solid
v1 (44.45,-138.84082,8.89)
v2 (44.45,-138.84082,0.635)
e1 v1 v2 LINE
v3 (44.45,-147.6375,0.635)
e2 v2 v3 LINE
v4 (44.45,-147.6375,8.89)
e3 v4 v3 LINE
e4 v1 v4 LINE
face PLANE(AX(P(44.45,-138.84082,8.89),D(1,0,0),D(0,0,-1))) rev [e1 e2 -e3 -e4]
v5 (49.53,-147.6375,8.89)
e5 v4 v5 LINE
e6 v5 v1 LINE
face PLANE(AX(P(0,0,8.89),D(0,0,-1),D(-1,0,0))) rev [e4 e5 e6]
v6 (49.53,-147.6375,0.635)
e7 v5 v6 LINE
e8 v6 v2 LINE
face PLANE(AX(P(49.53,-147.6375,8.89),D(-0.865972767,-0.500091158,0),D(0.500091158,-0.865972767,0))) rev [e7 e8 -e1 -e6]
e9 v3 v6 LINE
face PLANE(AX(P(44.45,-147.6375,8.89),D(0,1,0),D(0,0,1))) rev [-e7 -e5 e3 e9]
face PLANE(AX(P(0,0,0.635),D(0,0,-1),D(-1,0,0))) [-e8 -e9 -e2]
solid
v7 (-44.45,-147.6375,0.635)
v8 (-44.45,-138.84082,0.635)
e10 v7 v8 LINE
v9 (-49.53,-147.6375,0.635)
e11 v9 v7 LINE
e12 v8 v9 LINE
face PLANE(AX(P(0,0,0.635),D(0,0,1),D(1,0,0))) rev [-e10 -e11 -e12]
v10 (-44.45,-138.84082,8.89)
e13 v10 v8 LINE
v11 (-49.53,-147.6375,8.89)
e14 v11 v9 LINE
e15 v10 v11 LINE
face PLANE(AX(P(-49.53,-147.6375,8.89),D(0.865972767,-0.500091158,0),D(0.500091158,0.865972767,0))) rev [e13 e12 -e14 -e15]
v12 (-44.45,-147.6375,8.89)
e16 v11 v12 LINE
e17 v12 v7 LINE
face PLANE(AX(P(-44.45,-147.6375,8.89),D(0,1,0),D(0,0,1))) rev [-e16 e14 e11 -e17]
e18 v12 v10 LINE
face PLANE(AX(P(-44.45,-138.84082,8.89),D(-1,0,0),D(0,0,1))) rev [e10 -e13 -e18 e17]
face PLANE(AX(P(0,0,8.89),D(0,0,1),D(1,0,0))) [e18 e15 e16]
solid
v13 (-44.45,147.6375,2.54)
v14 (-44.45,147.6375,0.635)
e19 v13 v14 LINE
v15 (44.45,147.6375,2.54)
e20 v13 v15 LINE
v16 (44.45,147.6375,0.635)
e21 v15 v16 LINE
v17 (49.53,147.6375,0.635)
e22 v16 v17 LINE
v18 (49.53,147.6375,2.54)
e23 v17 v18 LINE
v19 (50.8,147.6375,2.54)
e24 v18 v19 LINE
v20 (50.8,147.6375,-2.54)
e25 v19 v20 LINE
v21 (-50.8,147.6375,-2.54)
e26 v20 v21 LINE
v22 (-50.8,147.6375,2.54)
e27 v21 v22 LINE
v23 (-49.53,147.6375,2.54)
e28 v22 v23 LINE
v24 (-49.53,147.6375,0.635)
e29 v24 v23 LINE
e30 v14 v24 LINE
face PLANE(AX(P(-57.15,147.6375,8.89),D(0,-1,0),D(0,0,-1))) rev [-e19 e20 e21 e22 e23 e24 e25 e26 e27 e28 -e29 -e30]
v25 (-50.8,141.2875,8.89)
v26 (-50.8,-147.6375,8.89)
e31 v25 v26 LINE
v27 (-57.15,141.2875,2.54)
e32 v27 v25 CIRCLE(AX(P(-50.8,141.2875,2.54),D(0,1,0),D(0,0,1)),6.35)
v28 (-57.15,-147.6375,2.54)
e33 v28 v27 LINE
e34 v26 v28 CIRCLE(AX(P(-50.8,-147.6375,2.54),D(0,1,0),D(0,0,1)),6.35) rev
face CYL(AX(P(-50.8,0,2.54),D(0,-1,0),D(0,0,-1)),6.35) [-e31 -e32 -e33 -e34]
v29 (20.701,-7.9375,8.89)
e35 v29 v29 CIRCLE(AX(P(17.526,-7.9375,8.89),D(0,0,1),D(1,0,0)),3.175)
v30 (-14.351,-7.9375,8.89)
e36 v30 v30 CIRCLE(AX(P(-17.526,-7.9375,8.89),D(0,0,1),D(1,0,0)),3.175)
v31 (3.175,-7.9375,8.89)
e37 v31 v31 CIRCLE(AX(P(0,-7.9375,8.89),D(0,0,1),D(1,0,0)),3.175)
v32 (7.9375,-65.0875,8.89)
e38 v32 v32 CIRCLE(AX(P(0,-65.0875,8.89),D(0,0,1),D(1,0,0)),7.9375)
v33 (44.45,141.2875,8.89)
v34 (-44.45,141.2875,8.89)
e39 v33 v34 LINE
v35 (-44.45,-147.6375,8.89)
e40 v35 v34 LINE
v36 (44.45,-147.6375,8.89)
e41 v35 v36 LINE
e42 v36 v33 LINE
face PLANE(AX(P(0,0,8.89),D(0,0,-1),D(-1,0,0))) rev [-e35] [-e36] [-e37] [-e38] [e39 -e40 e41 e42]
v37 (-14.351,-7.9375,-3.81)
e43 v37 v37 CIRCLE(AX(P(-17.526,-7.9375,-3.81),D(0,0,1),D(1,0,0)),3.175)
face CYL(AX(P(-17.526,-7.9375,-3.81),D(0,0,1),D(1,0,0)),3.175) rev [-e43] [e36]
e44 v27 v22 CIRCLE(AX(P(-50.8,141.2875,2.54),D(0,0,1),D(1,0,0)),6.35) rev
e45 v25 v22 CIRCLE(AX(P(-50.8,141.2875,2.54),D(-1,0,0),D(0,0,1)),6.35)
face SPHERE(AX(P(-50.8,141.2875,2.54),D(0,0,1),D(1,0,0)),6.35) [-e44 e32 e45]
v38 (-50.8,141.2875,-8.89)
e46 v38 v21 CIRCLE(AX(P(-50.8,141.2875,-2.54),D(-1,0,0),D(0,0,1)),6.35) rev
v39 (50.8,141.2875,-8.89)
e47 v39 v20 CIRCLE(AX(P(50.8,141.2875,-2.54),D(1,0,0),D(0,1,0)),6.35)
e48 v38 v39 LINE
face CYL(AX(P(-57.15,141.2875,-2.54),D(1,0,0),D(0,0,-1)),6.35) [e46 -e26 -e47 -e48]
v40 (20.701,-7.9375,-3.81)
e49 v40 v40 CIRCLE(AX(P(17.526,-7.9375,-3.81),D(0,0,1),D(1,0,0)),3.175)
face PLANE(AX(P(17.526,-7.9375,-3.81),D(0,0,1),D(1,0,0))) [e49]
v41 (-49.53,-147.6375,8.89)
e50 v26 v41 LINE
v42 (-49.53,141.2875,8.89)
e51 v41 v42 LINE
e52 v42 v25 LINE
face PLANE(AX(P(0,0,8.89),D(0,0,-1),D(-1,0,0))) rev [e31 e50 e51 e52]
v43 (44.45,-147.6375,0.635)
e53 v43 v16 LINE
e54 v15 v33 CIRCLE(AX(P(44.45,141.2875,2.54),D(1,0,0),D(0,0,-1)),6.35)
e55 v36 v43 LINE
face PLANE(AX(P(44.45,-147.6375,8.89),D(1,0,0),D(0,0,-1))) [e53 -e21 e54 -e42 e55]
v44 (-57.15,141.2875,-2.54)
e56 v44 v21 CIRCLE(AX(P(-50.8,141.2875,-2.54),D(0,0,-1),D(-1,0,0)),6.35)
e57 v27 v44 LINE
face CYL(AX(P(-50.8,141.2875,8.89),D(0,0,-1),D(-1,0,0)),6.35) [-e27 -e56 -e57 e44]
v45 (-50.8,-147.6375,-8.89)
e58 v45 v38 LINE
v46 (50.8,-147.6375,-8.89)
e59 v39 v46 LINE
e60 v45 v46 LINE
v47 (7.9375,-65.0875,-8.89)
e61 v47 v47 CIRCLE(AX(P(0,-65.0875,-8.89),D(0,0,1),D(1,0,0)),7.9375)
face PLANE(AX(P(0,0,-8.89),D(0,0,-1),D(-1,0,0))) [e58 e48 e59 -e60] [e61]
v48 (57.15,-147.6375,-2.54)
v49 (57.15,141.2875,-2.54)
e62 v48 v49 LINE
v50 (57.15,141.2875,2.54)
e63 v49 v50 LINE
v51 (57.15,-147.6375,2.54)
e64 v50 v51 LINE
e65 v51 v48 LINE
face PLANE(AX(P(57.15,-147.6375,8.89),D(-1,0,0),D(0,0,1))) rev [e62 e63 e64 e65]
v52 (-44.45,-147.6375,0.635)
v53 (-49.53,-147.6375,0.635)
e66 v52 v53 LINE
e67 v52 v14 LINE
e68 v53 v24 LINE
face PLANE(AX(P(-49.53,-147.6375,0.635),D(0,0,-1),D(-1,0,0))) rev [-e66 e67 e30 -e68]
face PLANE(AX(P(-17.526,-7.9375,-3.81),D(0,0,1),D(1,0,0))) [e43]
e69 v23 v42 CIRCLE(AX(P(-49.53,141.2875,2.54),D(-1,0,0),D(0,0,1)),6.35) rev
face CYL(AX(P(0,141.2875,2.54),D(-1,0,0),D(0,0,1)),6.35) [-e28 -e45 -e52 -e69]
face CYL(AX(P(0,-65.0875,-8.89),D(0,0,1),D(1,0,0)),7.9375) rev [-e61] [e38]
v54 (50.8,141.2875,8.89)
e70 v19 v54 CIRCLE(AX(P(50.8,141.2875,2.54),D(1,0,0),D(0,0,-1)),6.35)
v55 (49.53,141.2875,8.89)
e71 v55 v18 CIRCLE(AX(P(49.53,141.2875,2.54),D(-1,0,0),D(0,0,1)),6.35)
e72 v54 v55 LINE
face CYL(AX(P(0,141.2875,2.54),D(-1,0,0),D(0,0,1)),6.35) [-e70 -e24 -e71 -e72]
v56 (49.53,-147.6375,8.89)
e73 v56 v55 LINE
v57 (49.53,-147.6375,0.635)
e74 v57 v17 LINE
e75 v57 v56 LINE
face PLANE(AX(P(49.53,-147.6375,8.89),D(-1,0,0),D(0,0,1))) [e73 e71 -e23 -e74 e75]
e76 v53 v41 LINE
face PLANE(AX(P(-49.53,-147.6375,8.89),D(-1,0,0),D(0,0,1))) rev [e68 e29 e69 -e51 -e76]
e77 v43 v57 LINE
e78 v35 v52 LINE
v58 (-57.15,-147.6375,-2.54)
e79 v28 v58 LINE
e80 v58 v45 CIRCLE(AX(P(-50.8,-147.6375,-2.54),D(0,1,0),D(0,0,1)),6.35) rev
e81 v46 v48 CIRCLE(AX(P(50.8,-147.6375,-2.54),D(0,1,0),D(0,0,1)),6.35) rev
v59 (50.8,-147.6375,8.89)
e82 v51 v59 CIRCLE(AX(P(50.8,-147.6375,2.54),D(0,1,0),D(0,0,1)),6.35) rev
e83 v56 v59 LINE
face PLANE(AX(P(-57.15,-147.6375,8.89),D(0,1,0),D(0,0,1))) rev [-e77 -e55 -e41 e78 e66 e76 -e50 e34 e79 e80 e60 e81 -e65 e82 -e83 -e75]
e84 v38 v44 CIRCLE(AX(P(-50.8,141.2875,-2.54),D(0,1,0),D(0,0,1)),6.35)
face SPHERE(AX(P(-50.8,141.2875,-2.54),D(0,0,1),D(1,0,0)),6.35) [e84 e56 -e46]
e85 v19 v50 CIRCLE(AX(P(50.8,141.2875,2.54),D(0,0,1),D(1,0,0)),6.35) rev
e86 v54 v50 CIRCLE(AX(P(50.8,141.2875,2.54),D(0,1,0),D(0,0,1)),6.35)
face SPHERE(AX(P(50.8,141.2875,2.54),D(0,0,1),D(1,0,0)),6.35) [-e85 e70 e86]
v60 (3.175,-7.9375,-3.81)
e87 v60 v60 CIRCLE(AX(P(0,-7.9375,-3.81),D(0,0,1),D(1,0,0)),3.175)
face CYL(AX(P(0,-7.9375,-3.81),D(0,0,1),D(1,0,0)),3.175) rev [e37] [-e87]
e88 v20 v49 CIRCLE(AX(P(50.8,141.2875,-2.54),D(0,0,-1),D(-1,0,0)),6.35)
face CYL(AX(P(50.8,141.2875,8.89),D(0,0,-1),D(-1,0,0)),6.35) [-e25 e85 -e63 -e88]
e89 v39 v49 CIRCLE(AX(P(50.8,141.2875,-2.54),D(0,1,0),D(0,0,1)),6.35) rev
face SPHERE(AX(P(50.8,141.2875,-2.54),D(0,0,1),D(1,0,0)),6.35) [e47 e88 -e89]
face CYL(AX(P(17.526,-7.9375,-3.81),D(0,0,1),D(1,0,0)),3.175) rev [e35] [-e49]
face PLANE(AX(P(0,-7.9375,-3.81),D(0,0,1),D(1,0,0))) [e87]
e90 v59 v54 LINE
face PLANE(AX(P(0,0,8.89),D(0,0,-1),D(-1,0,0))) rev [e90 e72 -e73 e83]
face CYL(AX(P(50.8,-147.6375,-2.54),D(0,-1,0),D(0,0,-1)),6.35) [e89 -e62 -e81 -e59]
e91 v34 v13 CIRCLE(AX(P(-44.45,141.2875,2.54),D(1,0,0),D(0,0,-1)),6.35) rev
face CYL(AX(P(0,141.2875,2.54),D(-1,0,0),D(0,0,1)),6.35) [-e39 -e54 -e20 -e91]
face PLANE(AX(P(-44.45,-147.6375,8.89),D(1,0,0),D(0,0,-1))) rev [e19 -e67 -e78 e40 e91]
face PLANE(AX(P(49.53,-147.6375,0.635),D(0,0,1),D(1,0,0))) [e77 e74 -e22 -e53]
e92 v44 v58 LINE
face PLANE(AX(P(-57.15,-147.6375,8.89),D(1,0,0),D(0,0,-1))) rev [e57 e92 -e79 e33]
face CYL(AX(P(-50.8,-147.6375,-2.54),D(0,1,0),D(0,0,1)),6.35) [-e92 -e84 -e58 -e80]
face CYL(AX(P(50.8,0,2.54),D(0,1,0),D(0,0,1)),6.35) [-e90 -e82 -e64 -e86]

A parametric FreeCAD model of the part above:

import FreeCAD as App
import Part
import Sketcher
from FreeCAD import Vector
Q = App.Units.Quantity


def edges_at(feature, points):
    """Names of the edges that pass closest to the given points."""
    edges = feature.Shape.Edges
    near = lambda p: min(range(len(edges)), key=lambda i: edges[i].distToShape(Part.Vertex(*p))[0])
    return sorted({f"Edge{near(p) + 1}" for p in points})

doc = App.newDocument("Part")
body = doc.addObject("PartDesign::Body", "Body")

sketch1 = body.newObject("Sketcher::SketchObject", "Sketch")
sketch1.AttachmentSupport = (doc.getObject("XY_Plane"), [""])
sketch1.MapMode = "FlatFace"
sketch1.addGeometry(Part.LineSegment(Vector(-57.15, 147.6375, 0), Vector(-57.15, -147.6375, 0)), False)
sketch1.addGeometry(Part.LineSegment(Vector(-57.15, -147.6375, 0), Vector(57.15, -147.6375, 0)), False)
sketch1.addGeometry(Part.LineSegment(Vector(57.15, -147.6375, 0), Vector(57.15, 147.6375, 0)), False)
sketch1.addGeometry(Part.LineSegment(Vector(57.15, 147.6375, 0), Vector(-57.15, 147.6375, 0)), False)
sketch1.addConstraint(Sketcher.Constraint("Coincident", 0, 2, 1, 1))
sketch1.addConstraint(Sketcher.Constraint("Coincident", 1, 2, 2, 1))
sketch1.addConstraint(Sketcher.Constraint("Coincident", 2, 2, 3, 1))
sketch1.addConstraint(Sketcher.Constraint("Coincident", 3, 2, 0, 1))
sketch1.addConstraint(Sketcher.Constraint("Vertical", 0))
sketch1.addConstraint(Sketcher.Constraint("Horizontal", 1))
sketch1.addConstraint(Sketcher.Constraint("Vertical", 2))
sketch1.addConstraint(Sketcher.Constraint("Horizontal", 3))
sketch1.addConstraint(Sketcher.Constraint("Symmetric", 0, 2, 2, 2, -1, 1))
sketch1.addConstraint(Sketcher.Constraint("DistanceX", 1, 1, 1, 2, Q("4.5 in")))
sketch1.addConstraint(Sketcher.Constraint("DistanceY", 0, 2, 0, 1, Q("11.625 in")))
pad1 = body.newObject("PartDesign::Pad", "Pad")
pad1.Profile = sketch1
pad1.Length = Q("0.7 in")
pad1.Midplane = True

sketch2 = body.newObject("Sketcher::SketchObject", "Sketch001")
sketch2.AttachmentSupport = (doc.getObject("XY_Plane"), [""])
sketch2.MapMode = "FlatFace"
sketch2.AttachmentOffset = App.Placement(Vector(0, 0, 0.35 * 25.4), App.Rotation())
sketch2.addGeometry(Part.Circle(Vector(0, -7.9375, 0), Vector(0, 0, 1), 3.175), False)
sketch2.addGeometry(Part.Circle(Vector(-17.526, -7.9375, 0), Vector(0, 0, 1), 3.175), False)
sketch2.addGeometry(Part.Circle(Vector(17.526, -7.9375, 0), Vector(0, 0, 1), 3.175), False)
sketch2.addConstraint(Sketcher.Constraint("Equal", 0, 1))
sketch2.addConstraint(Sketcher.Constraint("Equal", 1, 2))
sketch2.addConstraint(Sketcher.Constraint("Symmetric", 1, 3, 2, 3, -2))
sketch2.addConstraint(Sketcher.Constraint("PointOnObject", 0, 3, -2))
sketch2.addConstraint(Sketcher.Constraint("Horizontal", 0, 3, 1, 3))
sketch2.addConstraint(Sketcher.Constraint("Diameter", 0, Q("0.25 in")))
sketch2.addConstraint(Sketcher.Constraint("DistanceX", 1, 3, -1, 1, Q("0.69 in")))
sketch2.addConstraint(Sketcher.Constraint("DistanceY", 0, 3, -1, 1, Q("0.3125 in")))
pocket1 = body.newObject("PartDesign::Pocket", "Pocket")
pocket1.Profile = sketch2
pocket1.Length = Q("0.5 in")

sketch3 = body.newObject("Sketcher::SketchObject", "Sketch002")
sketch3.AttachmentSupport = (doc.getObject("XZ_Plane"), [""])
sketch3.MapMode = "FlatFace"
sketch3.AttachmentOffset = App.Placement(Vector(0, 0, -5.8125 * 25.4), App.Rotation())
sketch3.addGeometry(Part.LineSegment(Vector(-49.53, 0.635, 0), Vector(-49.53, 8.89, 0)), False)
sketch3.addGeometry(Part.LineSegment(Vector(-49.53, 8.89, 0), Vector(-44.45, 8.89, 0)), False)
sketch3.addGeometry(Part.LineSegment(Vector(-44.45, 8.89, 0), Vector(-44.45, 0.635, 0)), False)
sketch3.addGeometry(Part.LineSegment(Vector(-44.45, 0.635, 0), Vector(-49.53, 0.635, 0)), False)
sketch3.addConstraint(Sketcher.Constraint("Coincident", 0, 2, 1, 1))
sketch3.addConstraint(Sketcher.Constraint("Coincident", 1, 2, 2, 1))
sketch3.addConstraint(Sketcher.Constraint("Coincident", 2, 2, 3, 1))
sketch3.addConstraint(Sketcher.Constraint("Coincident", 3, 2, 0, 1))
sketch3.addConstraint(Sketcher.Constraint("Vertical", 0))
sketch3.addConstraint(Sketcher.Constraint("Horizontal", 1))
sketch3.addConstraint(Sketcher.Constraint("Vertical", 2))
sketch3.addConstraint(Sketcher.Constraint("Horizontal", 3))
sketch3.addConstraint(Sketcher.Constraint("DistanceX", 1, 1, 1, 2, Q("0.2 in")))
sketch3.addConstraint(Sketcher.Constraint("DistanceY", 0, 1, 0, 2, Q("0.325 in")))
sketch3.addConstraint(Sketcher.Constraint("DistanceX", 0, 2, -1, 1, Q("1.95 in")))
sketch3.addConstraint(Sketcher.Constraint("DistanceY", -1, 1, 0, 2, Q("0.35 in")))
pocket2 = body.newObject("PartDesign::Pocket", "Pocket001")
pocket2.Profile = sketch3
pocket2.Type = "ThroughAll"
pocket2.Reversed = True
doc.recompute()

mirrored = body.newObject("PartDesign::Mirrored", "Mirrored")
mirrored.Originals = [pocket2]
mirrored.MirrorPlane = (doc.getObject("YZ_Plane"), [""])
body.Tip = mirrored
doc.recompute()

fillet = body.newObject("PartDesign::Fillet", "Fillet")
fillet.Base = (mirrored, edges_at(mirrored, [
    (-57.15, 0, 8.89),
    (-53.34, 147.637, 8.89),
    (57.15, 0, 8.89),
    (0, 147.637, 8.89),
    (-57.15, 0, -8.89),
    (0, 147.637, -8.89),
    (57.15, 0, -8.89),
    (53.34, 147.637, 8.89),
    (-57.15, 147.637, 0),
    (57.15, 147.637, 0),
]))
fillet.Radius = Q("0.25 in")

sketch4 = body.newObject("Sketcher::SketchObject", "Sketch003")
sketch4.AttachmentSupport = (doc.getObject("XY_Plane"), [""])
sketch4.MapMode = "FlatFace"
sketch4.AttachmentOffset = App.Placement(Vector(0, 0, 0.35 * 25.4), App.Rotation())
sketch4.addGeometry(Part.Circle(Vector(0, -65.0875, 0), Vector(0, 0, 1), 7.9375), False)
sketch4.addConstraint(Sketcher.Constraint("PointOnObject", 0, 3, -2))
sketch4.addConstraint(Sketcher.Constraint("Diameter", 0, Q("0.625 in")))
sketch4.addConstraint(Sketcher.Constraint("DistanceY", 0, 3, -1, 1, Q("2.5625 in")))
pocket3 = body.newObject("PartDesign::Pocket", "Pocket002")
pocket3.Profile = sketch4
pocket3.Type = "ThroughAll"
body2 = doc.addObject("PartDesign::Body", "Body001")

sketch5 = body2.newObject("Sketcher::SketchObject", "Sketch004")
sketch5.AttachmentSupport = (doc.getObject("XY_Plane001"), [""])
sketch5.MapMode = "FlatFace"
sketch5.AttachmentOffset = App.Placement(Vector(0, 0, 0.025 * 25.4), App.Rotation())
sketch5.addGeometry(Part.LineSegment(Vector(-44.45, -138.84082, 0), Vector(-49.53, -147.6375, 0)), False)
sketch5.addGeometry(Part.LineSegment(Vector(-49.53, -147.6375, 0), Vector(-44.45, -147.6375, 0)), False)
sketch5.addGeometry(Part.LineSegment(Vector(-44.45, -147.6375, 0), Vector(-44.45, -138.84082, 0)), False)
sketch5.addConstraint(Sketcher.Constraint("Coincident", 0, 2, 1, 1))
sketch5.addConstraint(Sketcher.Constraint("Coincident", 1, 2, 2, 1))
sketch5.addConstraint(Sketcher.Constraint("Coincident", 2, 2, 0, 1))
sketch5.addConstraint(Sketcher.Constraint("Horizontal", 1))
sketch5.addConstraint(Sketcher.Constraint("Vertical", 2))
sketch5.addConstraint(Sketcher.Constraint("DistanceX", 1, 1, 1, 2, Q("0.2 in")))
sketch5.addConstraint(Sketcher.Constraint("DistanceX", 0, 2, -1, 1, Q("1.95 in")))
sketch5.addConstraint(Sketcher.Constraint("DistanceY", 0, 2, -1, 1, Q("5.8125 in")))
sketch5.addConstraint(Sketcher.Constraint("DistanceY", 2, 1, 2, 2, Q("8.79668 mm")))
pad2 = body2.newObject("PartDesign::Pad", "Pad001")
pad2.Profile = sketch5
pad2.Length = Q("0.325 in")
body3 = doc.addObject("PartDesign::Body", "Body002")

sketch6 = body3.newObject("Sketcher::SketchObject", "Sketch005")
sketch6.AttachmentSupport = (doc.getObject("XY_Plane002"), [""])
sketch6.MapMode = "FlatFace"
sketch6.AttachmentOffset = App.Placement(Vector(0, 0, 0.025 * 25.4), App.Rotation())
sketch6.addGeometry(Part.LineSegment(Vector(49.53, -147.6375, 0), Vector(44.45, -138.84082, 0)), False)
sketch6.addGeometry(Part.LineSegment(Vector(44.45, -138.84082, 0), Vector(44.45, -147.6375, 0)), False)
sketch6.addGeometry(Part.LineSegment(Vector(44.45, -147.6375, 0), Vector(49.53, -147.6375, 0)), False)
sketch6.addConstraint(Sketcher.Constraint("Coincident", 0, 2, 1, 1))
sketch6.addConstraint(Sketcher.Constraint("Coincident", 1, 2, 2, 1))
sketch6.addConstraint(Sketcher.Constraint("Coincident", 2, 2, 0, 1))
sketch6.addConstraint(Sketcher.Constraint("Vertical", 1))
sketch6.addConstraint(Sketcher.Constraint("Horizontal", 2))
sketch6.addConstraint(Sketcher.Constraint("DistanceX", 2, 1, 2, 2, Q("0.2 in")))
sketch6.addConstraint(Sketcher.Constraint("DistanceX", -1, 1, 0, 2, Q("1.75 in")))
sketch6.addConstraint(Sketcher.Constraint("DistanceY", 1, 2, -1, 1, Q("5.8125 in")))
sketch6.addConstraint(Sketcher.Constraint("DistanceY", 1, 2, 1, 1, Q("8.79668 mm")))
pad3 = body3.newObject("PartDesign::Pad", "Pad002")
pad3.Profile = sketch6
pad3.Length = Q("0.325 in")

doc.recompute()
